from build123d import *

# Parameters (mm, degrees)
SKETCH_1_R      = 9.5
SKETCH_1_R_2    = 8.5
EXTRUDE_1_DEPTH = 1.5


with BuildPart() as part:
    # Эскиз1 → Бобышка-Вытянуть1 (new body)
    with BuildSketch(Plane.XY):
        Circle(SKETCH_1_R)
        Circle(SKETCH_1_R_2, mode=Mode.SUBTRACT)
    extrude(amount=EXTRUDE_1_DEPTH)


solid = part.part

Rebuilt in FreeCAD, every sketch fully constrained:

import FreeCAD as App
import Part
import Sketcher
from FreeCAD import Vector

doc = App.newDocument("Part")
body = doc.addObject("PartDesign::Body", "Body")

sketch1 = body.newObject("Sketcher::SketchObject", "Sketch")
sketch1.AttachmentSupport = (doc.getObject("XY_Plane"), [""])
sketch1.MapMode = "FlatFace"
sketch1.addGeometry(Part.Circle(Vector(0, 0, 0), Vector(0, 0, 1), 10), False)
sketch1.addGeometry(Part.Circle(Vector(0, 0, 0), Vector(0, 0, 1), 8), False)
sketch1.addConstraint(Sketcher.Constraint("Coincident", 0, 3, -1, 1))
sketch1.addConstraint(Sketcher.Constraint("Coincident", 1, 3, -1, 1))
sketch1.addConstraint(Sketcher.Constraint("Diameter", 0, 19.0))
sketch1.addConstraint(Sketcher.Constraint("Diameter", 1, 17.0))
pad1 = body.newObject("PartDesign::Pad", "Pad")
pad1.Profile = sketch1
pad1.Length = 1.5

doc.recompute()
